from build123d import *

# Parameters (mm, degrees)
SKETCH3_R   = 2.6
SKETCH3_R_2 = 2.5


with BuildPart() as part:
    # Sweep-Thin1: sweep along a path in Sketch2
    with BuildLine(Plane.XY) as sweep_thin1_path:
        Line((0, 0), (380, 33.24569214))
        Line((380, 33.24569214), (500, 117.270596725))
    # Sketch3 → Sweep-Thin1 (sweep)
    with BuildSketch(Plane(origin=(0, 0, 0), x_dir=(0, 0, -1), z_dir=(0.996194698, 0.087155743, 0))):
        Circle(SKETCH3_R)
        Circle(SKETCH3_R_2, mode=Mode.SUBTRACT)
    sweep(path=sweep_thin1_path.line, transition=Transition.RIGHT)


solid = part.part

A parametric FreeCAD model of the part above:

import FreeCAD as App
import Part
import Sketcher
from FreeCAD import Vector
Q = App.Units.Quantity

doc = App.newDocument("Part")
body = doc.addObject("PartDesign::Body", "Body")

# Sketch on an angled plane
sketch1 = doc.addObject("Sketcher::SketchObject", "Sketch")
body.addObject(sketch1)
sketch1.Placement = App.Placement(Vector(0, 0, 0), App.Rotation(Vector(0, 0, -1), Vector(-0.087155743, 0.996194698, 0), Vector(0.996194698, 0.087155743, 0), "ZXY"))
sketch1.addGeometry([
    Part.Circle(Vector(0, 0, 0), Vector(0, 0, 1), 2.6),
    Part.Circle(Vector(0, 0, 0), Vector(0, 0, 1), 2.5),
], False)
sketch1.addConstraint([
    Sketcher.Constraint("Coincident", 0, 3, -1, 1),
    Sketcher.Constraint("Coincident", 1, 3, -1, 1),
    Sketcher.Constraint("Diameter", 1, Q("5 mm")),
    Sketcher.Constraint("Diameter", 0, Q("5.2 mm")),
])

# Sketch on XY plane
sketch2 = doc.addObject("Sketcher::SketchObject", "Sketch001")
body.addObject(sketch2)
sketch2.AttachmentSupport = (doc.XY_Plane, [""])
sketch2.MapMode = "FlatFace"
sketch2.addGeometry([
    Part.LineSegment(Vector(0, 0, 0), Vector(380, 33.245692, 0)),
    Part.LineSegment(Vector(380, 33.245692, 0), Vector(500, 117.270597, 0)),
], False)
sketch2.addConstraint([
    Sketcher.Constraint("Coincident", 0, 2, 1, 1),
    Sketcher.Constraint("Coincident", 0, 1, -1, 1),
    Sketcher.Constraint("Angle", 0, Q("5 deg")),
    Sketcher.Constraint("Angle", 1, Q("35 deg")),
    Sketcher.Constraint("DistanceX", -1, 1, 0, 2, Q("380 mm")),
    Sketcher.Constraint("DistanceX", -1, 1, 1, 2, Q("500 mm")),
])
doc.recompute()

additivepipe = doc.addObject("PartDesign::AdditivePipe", "AdditivePipe")
body.addObject(additivepipe)
additivepipe.Profile = sketch1
additivepipe.Spine = (sketch2, ["Edge1", "Edge2"])
additivepipe.Transition = "Right corner"

doc.recompute()
